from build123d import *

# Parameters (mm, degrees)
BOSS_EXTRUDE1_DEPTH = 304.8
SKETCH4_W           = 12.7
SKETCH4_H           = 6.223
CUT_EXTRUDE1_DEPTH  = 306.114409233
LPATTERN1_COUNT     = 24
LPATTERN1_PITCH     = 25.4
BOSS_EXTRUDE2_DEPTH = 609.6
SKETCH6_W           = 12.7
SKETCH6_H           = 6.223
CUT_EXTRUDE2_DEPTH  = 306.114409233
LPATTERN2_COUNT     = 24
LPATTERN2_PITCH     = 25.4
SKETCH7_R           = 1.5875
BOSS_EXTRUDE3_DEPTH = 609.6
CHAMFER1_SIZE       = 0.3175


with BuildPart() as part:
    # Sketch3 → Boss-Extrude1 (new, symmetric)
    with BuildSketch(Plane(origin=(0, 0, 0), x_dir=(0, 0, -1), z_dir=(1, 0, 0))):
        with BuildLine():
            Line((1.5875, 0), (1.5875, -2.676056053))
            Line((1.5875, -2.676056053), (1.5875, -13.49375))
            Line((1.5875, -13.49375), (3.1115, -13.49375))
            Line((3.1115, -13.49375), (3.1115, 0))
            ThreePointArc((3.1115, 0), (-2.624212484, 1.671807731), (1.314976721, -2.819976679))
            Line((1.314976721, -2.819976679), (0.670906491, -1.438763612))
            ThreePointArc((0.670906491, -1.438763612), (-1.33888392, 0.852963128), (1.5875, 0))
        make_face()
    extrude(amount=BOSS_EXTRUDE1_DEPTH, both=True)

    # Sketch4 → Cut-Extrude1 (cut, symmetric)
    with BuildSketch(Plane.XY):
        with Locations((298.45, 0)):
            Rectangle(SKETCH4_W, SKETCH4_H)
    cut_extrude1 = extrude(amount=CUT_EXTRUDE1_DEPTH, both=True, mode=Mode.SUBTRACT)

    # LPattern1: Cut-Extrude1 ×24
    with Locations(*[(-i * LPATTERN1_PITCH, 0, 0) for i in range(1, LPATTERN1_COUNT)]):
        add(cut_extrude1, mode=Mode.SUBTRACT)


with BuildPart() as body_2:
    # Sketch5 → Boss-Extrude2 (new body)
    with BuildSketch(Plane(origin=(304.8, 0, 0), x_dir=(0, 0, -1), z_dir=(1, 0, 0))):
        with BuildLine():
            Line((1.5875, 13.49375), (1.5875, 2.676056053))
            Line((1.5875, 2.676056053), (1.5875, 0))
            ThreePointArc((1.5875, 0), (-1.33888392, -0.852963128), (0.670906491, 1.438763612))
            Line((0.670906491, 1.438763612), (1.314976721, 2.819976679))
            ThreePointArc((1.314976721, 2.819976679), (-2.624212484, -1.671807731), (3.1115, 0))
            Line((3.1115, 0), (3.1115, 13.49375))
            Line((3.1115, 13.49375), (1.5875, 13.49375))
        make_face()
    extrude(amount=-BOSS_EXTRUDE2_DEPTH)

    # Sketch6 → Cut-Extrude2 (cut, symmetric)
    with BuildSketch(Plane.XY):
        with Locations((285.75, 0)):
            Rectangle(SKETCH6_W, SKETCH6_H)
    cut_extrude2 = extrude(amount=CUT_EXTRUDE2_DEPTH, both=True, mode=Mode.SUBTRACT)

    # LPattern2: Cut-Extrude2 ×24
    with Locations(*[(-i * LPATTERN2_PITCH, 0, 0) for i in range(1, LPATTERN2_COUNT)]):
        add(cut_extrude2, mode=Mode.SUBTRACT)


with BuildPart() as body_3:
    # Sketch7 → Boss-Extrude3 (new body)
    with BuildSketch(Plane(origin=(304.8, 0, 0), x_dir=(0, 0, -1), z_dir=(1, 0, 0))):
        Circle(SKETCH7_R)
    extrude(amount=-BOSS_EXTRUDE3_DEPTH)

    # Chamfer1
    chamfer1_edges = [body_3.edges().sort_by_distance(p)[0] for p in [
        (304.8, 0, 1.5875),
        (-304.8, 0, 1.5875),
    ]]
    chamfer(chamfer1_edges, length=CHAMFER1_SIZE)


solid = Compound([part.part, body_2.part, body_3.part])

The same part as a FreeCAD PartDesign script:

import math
import FreeCAD as App
import Part
import Sketcher
from FreeCAD import Vector
Q = App.Units.Quantity


def edges_at(feature, points):
    """Names of the edges that pass closest to the given points."""
    edges = feature.Shape.Edges
    near = lambda p: min(range(len(edges)), key=lambda i: edges[i].distToShape(Part.Vertex(*p))[0])
    return sorted({f"Edge{near(p) + 1}" for p in points})


def add_polygon(sketch, points):
    """Adds a closed chain of lines whose ends are joined by coincident constraints."""
    first, n = sketch.GeometryCount, len(points)
    for a, b in zip(points, points[1:] + points[:1]):
        sketch.addGeometry(Part.LineSegment(App.Vector(*a, 0), App.Vector(*b, 0)), False)
    for i in range(n):
        sketch.addConstraint(Sketcher.Constraint("Coincident", first + i, 2, first + (i + 1) % n, 1))

doc = App.newDocument("Part")
body = doc.addObject("PartDesign::Body", "Body")

# Sketch on YZ plane
sketch1 = doc.addObject("Sketcher::SketchObject", "Sketch")
body.addObject(sketch1)
sketch1.AttachmentSupport = (doc.YZ_Plane, [""])
sketch1.MapMode = "FlatFace"
sketch1.addGeometry(Part.LineSegment(Vector(0, -1.6, 0), Vector(-13.5, -1.6, 0)), False)
sketch1.addGeometry(Part.LineSegment(Vector(-13.5, -1.6, 0), Vector(-13.5, -3.1, 0)), False)
sketch1.addGeometry(Part.LineSegment(Vector(-13.5, -3.1, 0), Vector(0, -3.1, 0)), False)
sketch1.addGeometry(Part.ArcOfCircle(Part.Circle(Vector(0, 0, 0), Vector(0, 0, 1), 3.1), math.radians(-90), math.radians(205)), False)
sketch1.addGeometry(Part.LineSegment(Vector(-2.8, -1.3, 0), Vector(-1.4, -0.7, 0)), False)
sketch1.addGeometry(Part.ArcOfCircle(Part.Circle(Vector(0, 0, 0), Vector(0, 0, 1), 1.6), math.radians(-90), math.radians(205)), False)
sketch1.addConstraint(Sketcher.Constraint("Coincident", 0, 2, 1, 1))
sketch1.addConstraint(Sketcher.Constraint("Coincident", 1, 2, 2, 1))
sketch1.addConstraint(Sketcher.Constraint("Tangent", 2, 2, 3, 1))
sketch1.addConstraint(Sketcher.Constraint("Coincident", 3, 2, 4, 1))
sketch1.addConstraint(Sketcher.Constraint("Coincident", 4, 2, 5, 2))
sketch1.addConstraint(Sketcher.Constraint("Tangent", 5, 1, 0, 1))
sketch1.addConstraint(Sketcher.Constraint("Horizontal", 0))
sketch1.addConstraint(Sketcher.Constraint("Vertical", 1))
sketch1.addConstraint(Sketcher.Constraint("Horizontal", 2))
sketch1.addConstraint(Sketcher.Constraint("Coincident", 3, 3, -1, 1))
sketch1.addConstraint(Sketcher.Constraint("Coincident", 5, 3, -1, 1))
sketch1.addConstraint(Sketcher.Constraint("Angle", 4, Q("25 deg")))
sketch1.addConstraint(Sketcher.Constraint("Radius", 5, Q("0.0625 in")))
sketch1.addConstraint(Sketcher.Constraint("DistanceY", 1, 2, 1, 1, Q("0.06 in")))
sketch1.addConstraint(Sketcher.Constraint("DistanceX", 0, 2, 0, 1, Q("0.53125 in")))
sketch1.addConstraint(Sketcher.Constraint("DistanceX", 3, 2, -1, 1, Q("2.819977 mm")))
pad1 = doc.addObject("PartDesign::Pad", "Pad")
body.addObject(pad1)
pad1.Profile = sketch1
pad1.Length = Q("24 in")
pad1.Midplane = True

# Sketch on XY plane
sketch2 = doc.addObject("Sketcher::SketchObject", "Sketch001")
body.addObject(sketch2)
sketch2.AttachmentSupport = (doc.XY_Plane, [""])
sketch2.MapMode = "FlatFace"
add_polygon(sketch2, [(292, 3), (292, -3), (305, -3), (305, 3)])  # lines 0-3
sketch2.addConstraint(Sketcher.Constraint("Vertical", 0))
sketch2.addConstraint(Sketcher.Constraint("Horizontal", 1))
sketch2.addConstraint(Sketcher.Constraint("Vertical", 2))
sketch2.addConstraint(Sketcher.Constraint("Horizontal", 3))
sketch2.addConstraint(Sketcher.Constraint("DistanceX", 1, 1, 1, 2, Q("0.5 in")))
sketch2.addConstraint(Sketcher.Constraint("DistanceX", -1, 1, 1, 2, Q("12 in")))
sketch2.addConstraint(Sketcher.Constraint("DistanceY", 0, 2, 0, 1, Q("0.245 in")))
sketch2.addConstraint(Sketcher.Constraint("DistanceY", 0, 2, -1, 1, Q("0.1225 in")))
pocket1 = doc.addObject("PartDesign::Pocket", "Pocket")
body.addObject(pocket1)
pocket1.Profile = sketch2
pocket1.Length = 612.228818
pocket1.Midplane = True
doc.recompute()

linearpattern = doc.addObject("PartDesign::LinearPattern", "LinearPattern")
body.addObject(linearpattern)
linearpattern.Originals = [pocket1]
linearpattern.Direction = (doc.X_Axis, [""])
linearpattern.Mode = "offset"
linearpattern.Offset = Q("1 in")
linearpattern.Occurrences = 24
linearpattern.Reversed = True
body.Tip = linearpattern
body2 = doc.addObject("PartDesign::Body", "Body001")

# Sketch on YZ plane
sketch3 = doc.addObject("Sketcher::SketchObject", "Sketch002")
body2.addObject(sketch3)
sketch3.AttachmentSupport = (doc.getObject("YZ_Plane001"), [""])
sketch3.MapMode = "FlatFace"
sketch3.AttachmentOffset = App.Placement(Vector(0, 0, 12 * 25.4), App.Rotation())
sketch3.addGeometry(Part.LineSegment(Vector(13.5, -1.6, 0), Vector(0, -1.6, 0)), False)
sketch3.addGeometry(Part.ArcOfCircle(Part.Circle(Vector(0, 0, 0), Vector(0, 0, 1), 1.6), math.radians(-25), math.radians(270)), False)
sketch3.addGeometry(Part.LineSegment(Vector(1.4, -0.7, 0), Vector(2.8, -1.3, 0)), False)
sketch3.addGeometry(Part.ArcOfCircle(Part.Circle(Vector(0, 0, 0), Vector(0, 0, 1), 3.1), math.radians(-25), math.radians(270)), False)
sketch3.addGeometry(Part.LineSegment(Vector(0, -3.1, 0), Vector(13.5, -3.1, 0)), False)
sketch3.addGeometry(Part.LineSegment(Vector(13.5, -3.1, 0), Vector(13.5, -1.6, 0)), False)
sketch3.addConstraint(Sketcher.Constraint("Tangent", 0, 2, 1, 2))
sketch3.addConstraint(Sketcher.Constraint("Coincident", 1, 1, 2, 1))
sketch3.addConstraint(Sketcher.Constraint("Coincident", 2, 2, 3, 1))
sketch3.addConstraint(Sketcher.Constraint("Tangent", 3, 2, 4, 1))
sketch3.addConstraint(Sketcher.Constraint("Coincident", 4, 2, 5, 1))
sketch3.addConstraint(Sketcher.Constraint("Coincident", 5, 2, 0, 1))
sketch3.addConstraint(Sketcher.Constraint("Horizontal", 0))
sketch3.addConstraint(Sketcher.Constraint("Horizontal", 4))
sketch3.addConstraint(Sketcher.Constraint("Vertical", 5))
sketch3.addConstraint(Sketcher.Constraint("Coincident", 1, 3, -1, 1))
sketch3.addConstraint(Sketcher.Constraint("Coincident", 3, 3, -1, 1))
sketch3.addConstraint(Sketcher.Constraint("Angle", 2, Q("-25 deg")))
sketch3.addConstraint(Sketcher.Constraint("Radius", 1, Q("0.0625 in")))
sketch3.addConstraint(Sketcher.Constraint("DistanceY", 5, 1, 5, 2, Q("0.06 in")))
sketch3.addConstraint(Sketcher.Constraint("DistanceX", 0, 2, 0, 1, Q("0.53125 in")))
sketch3.addConstraint(Sketcher.Constraint("DistanceX", -1, 1, 1, 1, Q("1.438764 mm")))
pad2 = doc.addObject("PartDesign::Pad", "Pad001")
body2.addObject(pad2)
pad2.Profile = sketch3
pad2.Length = Q("24 in")
pad2.Reversed = True

# Sketch on XY plane
sketch4 = doc.addObject("Sketcher::SketchObject", "Sketch003")
body2.addObject(sketch4)
sketch4.AttachmentSupport = (doc.getObject("XY_Plane001"), [""])
sketch4.MapMode = "FlatFace"
add_polygon(sketch4, [(279, 3), (279, -3), (292, -3), (292, 3)])  # lines 0-3
sketch4.addConstraint(Sketcher.Constraint("Vertical", 0))
sketch4.addConstraint(Sketcher.Constraint("Horizontal", 1))
sketch4.addConstraint(Sketcher.Constraint("Vertical", 2))
sketch4.addConstraint(Sketcher.Constraint("Horizontal", 3))
sketch4.addConstraint(Sketcher.Constraint("DistanceX", 1, 1, 1, 2, Q("0.5 in")))
sketch4.addConstraint(Sketcher.Constraint("DistanceX", -1, 1, 0, 2, Q("11 in")))
sketch4.addConstraint(Sketcher.Constraint("DistanceY", 0, 2, 0, 1, Q("0.245 in")))
sketch4.addConstraint(Sketcher.Constraint("DistanceY", 0, 2, -1, 1, Q("0.1225 in")))
pocket2 = doc.addObject("PartDesign::Pocket", "Pocket001")
body2.addObject(pocket2)
pocket2.Profile = sketch4
pocket2.Length = 612.228818
pocket2.Midplane = True
doc.recompute()

linearpattern2 = doc.addObject("PartDesign::LinearPattern", "LinearPattern001")
body2.addObject(linearpattern2)
linearpattern2.Originals = [pocket2]
linearpattern2.Direction = (doc.getObject("X_Axis001"), [""])
linearpattern2.Mode = "offset"
linearpattern2.Offset = Q("1 in")
linearpattern2.Occurrences = 24
linearpattern2.Reversed = True
body2.Tip = linearpattern2
body3 = doc.addObject("PartDesign::Body", "Body002")

# Sketch on YZ plane
sketch5 = doc.addObject("Sketcher::SketchObject", "Sketch004")
body3.addObject(sketch5)
sketch5.AttachmentSupport = (doc.getObject("YZ_Plane002"), [""])
sketch5.MapMode = "FlatFace"
sketch5.AttachmentOffset = App.Placement(Vector(0, 0, 12 * 25.4), App.Rotation())
sketch5.addGeometry(Part.Circle(Vector(0, 0, 0), Vector(0, 0, 1), 1.6), False)
sketch5.addConstraint(Sketcher.Constraint("Coincident", 0, 3, -1, 1))
sketch5.addConstraint(Sketcher.Constraint("Diameter", 0, Q("0.125 in")))
pad3 = doc.addObject("PartDesign::Pad", "Pad002")
body3.addObject(pad3)
pad3.Profile = sketch5
pad3.Length = Q("24 in")
pad3.Reversed = True
doc.recompute()

chamfer = doc.addObject("PartDesign::Chamfer", "Chamfer")
body3.addObject(chamfer)
chamfer.Base = (pad3, edges_at(pad3, [(304.8, 0, 1.587), (-304.8, 0, 1.587)]))
chamfer.Size = Q("0.0125 in")

doc.recompute()
